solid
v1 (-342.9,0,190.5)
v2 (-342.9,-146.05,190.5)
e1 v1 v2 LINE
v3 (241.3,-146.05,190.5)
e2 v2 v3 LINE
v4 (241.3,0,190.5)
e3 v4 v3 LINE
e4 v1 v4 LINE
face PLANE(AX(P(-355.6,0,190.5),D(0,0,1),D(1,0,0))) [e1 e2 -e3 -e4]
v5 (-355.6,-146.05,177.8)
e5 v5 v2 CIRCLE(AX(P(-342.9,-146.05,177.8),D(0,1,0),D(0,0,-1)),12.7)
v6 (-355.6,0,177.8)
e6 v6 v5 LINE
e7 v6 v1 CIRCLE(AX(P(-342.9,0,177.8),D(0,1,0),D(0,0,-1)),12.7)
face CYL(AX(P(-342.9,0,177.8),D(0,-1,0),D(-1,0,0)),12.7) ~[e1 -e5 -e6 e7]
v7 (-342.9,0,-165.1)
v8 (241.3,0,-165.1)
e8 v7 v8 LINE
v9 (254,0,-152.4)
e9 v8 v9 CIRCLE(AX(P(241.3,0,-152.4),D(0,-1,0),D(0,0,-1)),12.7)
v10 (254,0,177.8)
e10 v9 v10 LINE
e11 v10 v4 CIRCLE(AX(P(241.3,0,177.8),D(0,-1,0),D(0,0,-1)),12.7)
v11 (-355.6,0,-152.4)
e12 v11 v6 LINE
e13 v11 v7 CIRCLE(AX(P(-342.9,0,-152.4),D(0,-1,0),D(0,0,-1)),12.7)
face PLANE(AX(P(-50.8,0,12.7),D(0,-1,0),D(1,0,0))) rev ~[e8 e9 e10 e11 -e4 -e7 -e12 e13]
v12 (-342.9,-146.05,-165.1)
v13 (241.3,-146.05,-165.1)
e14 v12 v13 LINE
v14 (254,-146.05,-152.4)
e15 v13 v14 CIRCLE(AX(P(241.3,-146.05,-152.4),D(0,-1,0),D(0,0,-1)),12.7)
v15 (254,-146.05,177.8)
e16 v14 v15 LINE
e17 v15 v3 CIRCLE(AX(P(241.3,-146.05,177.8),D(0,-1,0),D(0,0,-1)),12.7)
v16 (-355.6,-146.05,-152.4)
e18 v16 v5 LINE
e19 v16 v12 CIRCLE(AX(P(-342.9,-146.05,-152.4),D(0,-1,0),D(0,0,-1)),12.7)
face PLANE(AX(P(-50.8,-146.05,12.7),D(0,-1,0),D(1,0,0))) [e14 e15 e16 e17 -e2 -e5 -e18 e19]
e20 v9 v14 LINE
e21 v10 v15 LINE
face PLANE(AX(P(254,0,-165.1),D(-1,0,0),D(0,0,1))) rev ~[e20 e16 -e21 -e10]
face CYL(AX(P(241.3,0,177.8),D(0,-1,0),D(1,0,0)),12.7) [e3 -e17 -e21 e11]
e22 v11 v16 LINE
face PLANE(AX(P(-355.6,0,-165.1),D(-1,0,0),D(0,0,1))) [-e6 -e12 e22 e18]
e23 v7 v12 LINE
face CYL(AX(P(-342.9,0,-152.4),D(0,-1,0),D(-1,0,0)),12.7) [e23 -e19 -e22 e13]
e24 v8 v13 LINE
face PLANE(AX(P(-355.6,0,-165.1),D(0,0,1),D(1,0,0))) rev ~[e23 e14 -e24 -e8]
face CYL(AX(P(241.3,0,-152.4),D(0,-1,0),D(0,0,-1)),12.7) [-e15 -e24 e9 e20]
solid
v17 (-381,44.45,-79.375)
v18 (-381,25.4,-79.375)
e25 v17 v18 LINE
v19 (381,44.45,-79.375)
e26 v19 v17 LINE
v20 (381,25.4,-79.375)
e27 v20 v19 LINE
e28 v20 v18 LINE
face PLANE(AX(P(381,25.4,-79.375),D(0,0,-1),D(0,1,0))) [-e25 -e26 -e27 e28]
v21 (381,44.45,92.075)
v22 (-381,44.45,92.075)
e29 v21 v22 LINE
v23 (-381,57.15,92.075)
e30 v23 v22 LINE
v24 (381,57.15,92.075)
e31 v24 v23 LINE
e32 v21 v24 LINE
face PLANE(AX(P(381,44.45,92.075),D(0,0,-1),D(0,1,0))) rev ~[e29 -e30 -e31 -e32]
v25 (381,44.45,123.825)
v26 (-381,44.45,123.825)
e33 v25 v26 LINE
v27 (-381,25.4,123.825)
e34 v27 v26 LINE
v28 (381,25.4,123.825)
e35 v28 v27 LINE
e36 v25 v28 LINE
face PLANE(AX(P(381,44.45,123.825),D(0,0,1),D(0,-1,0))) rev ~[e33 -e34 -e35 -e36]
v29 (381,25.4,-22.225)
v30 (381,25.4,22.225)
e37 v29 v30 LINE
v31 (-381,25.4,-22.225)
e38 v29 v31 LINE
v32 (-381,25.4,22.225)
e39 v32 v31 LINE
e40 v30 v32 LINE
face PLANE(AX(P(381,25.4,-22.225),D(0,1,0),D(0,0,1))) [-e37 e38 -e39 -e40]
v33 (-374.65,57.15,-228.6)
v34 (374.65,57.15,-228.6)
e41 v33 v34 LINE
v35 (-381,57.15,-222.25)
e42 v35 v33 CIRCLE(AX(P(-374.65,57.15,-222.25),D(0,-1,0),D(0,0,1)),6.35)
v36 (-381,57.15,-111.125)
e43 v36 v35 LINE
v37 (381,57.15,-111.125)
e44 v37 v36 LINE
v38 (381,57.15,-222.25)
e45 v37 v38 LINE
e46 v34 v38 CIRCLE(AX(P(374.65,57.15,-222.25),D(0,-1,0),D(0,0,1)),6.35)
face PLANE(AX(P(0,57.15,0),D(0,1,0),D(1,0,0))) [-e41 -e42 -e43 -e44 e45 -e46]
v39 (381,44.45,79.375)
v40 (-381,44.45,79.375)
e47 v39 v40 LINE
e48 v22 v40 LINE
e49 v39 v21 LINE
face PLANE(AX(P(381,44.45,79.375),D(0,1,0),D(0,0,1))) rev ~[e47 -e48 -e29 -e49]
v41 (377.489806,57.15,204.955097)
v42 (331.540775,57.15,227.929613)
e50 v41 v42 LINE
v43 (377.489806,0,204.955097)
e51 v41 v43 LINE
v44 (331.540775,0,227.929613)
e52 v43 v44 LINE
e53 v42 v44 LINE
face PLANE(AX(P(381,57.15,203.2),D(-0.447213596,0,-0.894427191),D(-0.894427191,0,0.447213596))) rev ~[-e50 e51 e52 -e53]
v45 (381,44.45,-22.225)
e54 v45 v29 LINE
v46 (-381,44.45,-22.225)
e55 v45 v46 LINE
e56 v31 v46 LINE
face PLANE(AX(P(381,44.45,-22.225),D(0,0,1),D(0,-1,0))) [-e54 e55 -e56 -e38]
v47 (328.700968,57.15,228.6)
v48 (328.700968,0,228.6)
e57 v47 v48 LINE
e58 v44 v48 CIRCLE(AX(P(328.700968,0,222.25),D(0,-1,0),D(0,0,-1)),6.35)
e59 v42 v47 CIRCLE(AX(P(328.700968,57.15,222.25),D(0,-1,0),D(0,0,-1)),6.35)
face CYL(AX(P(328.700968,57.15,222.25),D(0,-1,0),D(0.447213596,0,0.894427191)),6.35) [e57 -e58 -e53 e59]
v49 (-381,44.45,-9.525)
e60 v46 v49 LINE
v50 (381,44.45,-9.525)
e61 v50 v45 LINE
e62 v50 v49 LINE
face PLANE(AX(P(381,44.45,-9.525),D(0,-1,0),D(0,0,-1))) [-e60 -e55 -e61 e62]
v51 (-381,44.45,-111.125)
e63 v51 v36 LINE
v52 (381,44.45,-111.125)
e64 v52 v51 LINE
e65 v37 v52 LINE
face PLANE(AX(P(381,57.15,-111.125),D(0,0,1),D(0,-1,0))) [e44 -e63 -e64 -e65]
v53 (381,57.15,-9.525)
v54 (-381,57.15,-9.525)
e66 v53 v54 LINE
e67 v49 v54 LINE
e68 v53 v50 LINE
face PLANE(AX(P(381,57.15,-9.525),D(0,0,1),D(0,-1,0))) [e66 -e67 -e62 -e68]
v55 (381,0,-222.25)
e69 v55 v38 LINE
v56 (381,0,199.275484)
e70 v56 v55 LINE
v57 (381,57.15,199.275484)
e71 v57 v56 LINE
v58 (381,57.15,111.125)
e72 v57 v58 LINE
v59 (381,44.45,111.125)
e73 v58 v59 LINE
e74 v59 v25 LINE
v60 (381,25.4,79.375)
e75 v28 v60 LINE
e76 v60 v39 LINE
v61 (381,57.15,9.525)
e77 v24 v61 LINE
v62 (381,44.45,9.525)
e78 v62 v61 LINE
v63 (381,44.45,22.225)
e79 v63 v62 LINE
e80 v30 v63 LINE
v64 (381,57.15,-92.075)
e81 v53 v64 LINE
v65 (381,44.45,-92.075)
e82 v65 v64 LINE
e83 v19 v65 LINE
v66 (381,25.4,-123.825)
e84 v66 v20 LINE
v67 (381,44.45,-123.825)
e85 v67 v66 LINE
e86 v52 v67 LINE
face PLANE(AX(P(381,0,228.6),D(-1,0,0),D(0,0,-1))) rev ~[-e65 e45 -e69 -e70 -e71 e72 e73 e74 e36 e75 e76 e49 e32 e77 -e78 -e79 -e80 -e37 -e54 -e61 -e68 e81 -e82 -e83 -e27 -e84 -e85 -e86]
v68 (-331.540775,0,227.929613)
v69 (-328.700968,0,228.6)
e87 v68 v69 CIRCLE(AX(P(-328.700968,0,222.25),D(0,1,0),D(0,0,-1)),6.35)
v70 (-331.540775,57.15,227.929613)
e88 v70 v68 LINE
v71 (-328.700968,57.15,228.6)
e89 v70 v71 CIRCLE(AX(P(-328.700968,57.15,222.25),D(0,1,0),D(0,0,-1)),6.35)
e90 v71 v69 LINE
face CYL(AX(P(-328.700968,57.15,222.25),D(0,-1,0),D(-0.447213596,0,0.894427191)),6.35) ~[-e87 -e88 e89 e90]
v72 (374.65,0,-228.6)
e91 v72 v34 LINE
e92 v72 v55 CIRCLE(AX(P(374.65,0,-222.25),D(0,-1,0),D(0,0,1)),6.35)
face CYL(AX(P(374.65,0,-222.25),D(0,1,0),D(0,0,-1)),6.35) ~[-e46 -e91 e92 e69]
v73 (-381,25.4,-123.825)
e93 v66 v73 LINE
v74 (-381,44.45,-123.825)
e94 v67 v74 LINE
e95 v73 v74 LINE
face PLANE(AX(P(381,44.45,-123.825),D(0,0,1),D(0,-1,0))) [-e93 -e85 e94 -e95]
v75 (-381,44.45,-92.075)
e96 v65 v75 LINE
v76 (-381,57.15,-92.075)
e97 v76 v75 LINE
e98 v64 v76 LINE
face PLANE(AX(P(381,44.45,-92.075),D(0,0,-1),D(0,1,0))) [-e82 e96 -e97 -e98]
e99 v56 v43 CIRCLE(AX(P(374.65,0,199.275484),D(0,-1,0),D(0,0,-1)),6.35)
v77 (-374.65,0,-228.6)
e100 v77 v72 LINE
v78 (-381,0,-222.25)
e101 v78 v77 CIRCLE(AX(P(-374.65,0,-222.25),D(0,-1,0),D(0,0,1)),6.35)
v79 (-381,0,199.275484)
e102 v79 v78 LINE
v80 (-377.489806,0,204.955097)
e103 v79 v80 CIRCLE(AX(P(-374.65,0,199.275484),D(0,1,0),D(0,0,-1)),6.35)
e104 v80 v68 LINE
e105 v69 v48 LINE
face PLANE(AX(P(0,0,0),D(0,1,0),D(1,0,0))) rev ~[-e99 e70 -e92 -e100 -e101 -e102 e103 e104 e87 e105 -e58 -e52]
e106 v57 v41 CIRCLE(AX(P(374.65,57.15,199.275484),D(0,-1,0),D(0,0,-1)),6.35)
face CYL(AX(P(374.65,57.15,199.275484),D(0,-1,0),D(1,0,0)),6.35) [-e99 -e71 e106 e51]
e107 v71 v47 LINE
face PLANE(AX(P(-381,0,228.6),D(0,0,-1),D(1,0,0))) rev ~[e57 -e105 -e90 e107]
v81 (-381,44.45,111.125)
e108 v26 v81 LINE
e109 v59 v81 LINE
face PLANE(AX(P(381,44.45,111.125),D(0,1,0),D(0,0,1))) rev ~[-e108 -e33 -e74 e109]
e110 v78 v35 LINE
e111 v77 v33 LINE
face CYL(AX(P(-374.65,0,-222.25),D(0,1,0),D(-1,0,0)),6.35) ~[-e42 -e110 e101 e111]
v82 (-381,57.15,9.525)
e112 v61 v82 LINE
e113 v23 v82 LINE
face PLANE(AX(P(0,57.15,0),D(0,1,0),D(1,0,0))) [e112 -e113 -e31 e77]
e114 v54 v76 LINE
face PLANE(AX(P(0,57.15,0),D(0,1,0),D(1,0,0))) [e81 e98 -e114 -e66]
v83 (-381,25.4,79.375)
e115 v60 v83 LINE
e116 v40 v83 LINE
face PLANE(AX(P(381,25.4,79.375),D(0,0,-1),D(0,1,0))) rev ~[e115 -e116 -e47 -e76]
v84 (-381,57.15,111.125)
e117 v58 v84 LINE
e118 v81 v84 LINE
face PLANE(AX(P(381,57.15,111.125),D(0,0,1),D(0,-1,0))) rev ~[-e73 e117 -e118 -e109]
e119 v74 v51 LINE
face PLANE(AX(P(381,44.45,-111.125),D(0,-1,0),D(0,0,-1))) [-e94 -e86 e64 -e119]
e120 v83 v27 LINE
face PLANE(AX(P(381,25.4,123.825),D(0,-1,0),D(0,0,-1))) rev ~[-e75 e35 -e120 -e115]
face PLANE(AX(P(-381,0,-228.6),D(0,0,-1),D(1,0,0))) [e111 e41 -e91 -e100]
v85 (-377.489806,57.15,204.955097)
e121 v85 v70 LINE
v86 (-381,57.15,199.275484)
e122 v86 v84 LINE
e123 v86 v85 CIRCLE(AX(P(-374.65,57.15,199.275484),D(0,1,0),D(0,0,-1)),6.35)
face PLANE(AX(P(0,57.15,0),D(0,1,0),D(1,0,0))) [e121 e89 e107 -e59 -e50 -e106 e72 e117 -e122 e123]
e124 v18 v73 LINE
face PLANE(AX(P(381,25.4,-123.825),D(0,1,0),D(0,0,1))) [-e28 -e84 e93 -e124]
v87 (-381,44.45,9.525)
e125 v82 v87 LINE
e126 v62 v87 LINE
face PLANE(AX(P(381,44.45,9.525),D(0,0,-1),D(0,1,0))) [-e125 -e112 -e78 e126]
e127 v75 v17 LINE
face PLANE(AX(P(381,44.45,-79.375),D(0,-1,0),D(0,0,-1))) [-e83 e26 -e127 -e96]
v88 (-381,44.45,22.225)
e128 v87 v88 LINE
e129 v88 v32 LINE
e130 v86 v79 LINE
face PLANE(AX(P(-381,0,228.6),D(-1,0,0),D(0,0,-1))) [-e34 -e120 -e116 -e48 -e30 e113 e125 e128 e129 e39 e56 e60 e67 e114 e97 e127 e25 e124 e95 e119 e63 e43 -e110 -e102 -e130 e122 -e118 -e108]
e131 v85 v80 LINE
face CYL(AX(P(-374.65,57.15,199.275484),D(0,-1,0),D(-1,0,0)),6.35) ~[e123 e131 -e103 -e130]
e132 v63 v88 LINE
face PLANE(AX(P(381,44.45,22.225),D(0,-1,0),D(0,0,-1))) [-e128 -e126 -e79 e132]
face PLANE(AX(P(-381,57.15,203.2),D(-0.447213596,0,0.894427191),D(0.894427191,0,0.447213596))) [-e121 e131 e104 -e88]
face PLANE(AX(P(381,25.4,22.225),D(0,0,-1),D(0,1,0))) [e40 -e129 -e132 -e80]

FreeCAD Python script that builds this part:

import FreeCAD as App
import Part
import Sketcher

V = App.Vector
Q = App.Units.Quantity


def edges_at(feature, points):
    """Names of the edges that pass closest to the given points."""
    edges = feature.Shape.Edges
    near = lambda p: min(range(len(edges)), key=lambda i: edges[i].distToShape(Part.Vertex(*p))[0])
    return sorted({f"Edge{near(p) + 1}" for p in points})


def add_polygon(sketch, points):
    """Adds a closed chain of lines whose ends are joined by coincident constraints."""
    first, n = sketch.GeometryCount, len(points)
    for a, b in zip(points, points[1:] + points[:1]):
        sketch.addGeometry(Part.LineSegment(App.Vector(*a, 0), App.Vector(*b, 0)), False)
    for i in range(n):
        sketch.addConstraint(Sketcher.Constraint("Coincident", first + i, 2, first + (i + 1) % n, 1))

doc = App.newDocument("Part")
body = doc.addObject("PartDesign::Body", "Body")

# Sketch on XZ plane
sketch1 = doc.addObject("Sketcher::SketchObject", "Sketch")
body.addObject(sketch1)
sketch1.AttachmentSupport = (doc.XZ_Plane, [""])
sketch1.MapMode = "FlatFace"
add_polygon(sketch1, [(-381, -229), (-381, 229), (381, 229), (381, -229)])  # lines 0-3
sketch1.addConstraint(Sketcher.Constraint("Vertical", 0))
sketch1.addConstraint(Sketcher.Constraint("Horizontal", 1))
sketch1.addConstraint(Sketcher.Constraint("Vertical", 2))
sketch1.addConstraint(Sketcher.Constraint("Horizontal", 3))
sketch1.addConstraint(Sketcher.Constraint("Symmetric", 0, 2, 2, 2, -1, 1))
sketch1.addConstraint(Sketcher.Constraint("DistanceX", 1, 1, 1, 2, Q("30 in")))
sketch1.addConstraint(Sketcher.Constraint("DistanceY", 0, 1, 0, 2, Q("18 in")))
pad1 = doc.addObject("PartDesign::Pad", "Pad")
body.addObject(pad1)
pad1.Profile = sketch1
pad1.Length = Q("2.25 in")
pad1.Reversed = True

# Sketch on XZ plane
sketch2 = doc.addObject("Sketcher::SketchObject", "Sketch001")
body.addObject(sketch2)
sketch2.AttachmentSupport = (doc.XZ_Plane, [""])
sketch2.MapMode = "FlatFace"
sketch2.AttachmentOffset = App.Placement(V(0, 0, -2.25 * 25.4), App.Rotation())
add_polygon(sketch2, [(-330, 229), (-381, 203), (-381, 229)])  # lines 0-2
add_polygon(sketch2, [(330, 229), (381, 229), (381, 203)])  # lines 3-5
sketch2.addConstraint(Sketcher.Constraint("Vertical", 1))
sketch2.addConstraint(Sketcher.Constraint("Horizontal", 2))
sketch2.addConstraint(Sketcher.Constraint("Horizontal", 3))
sketch2.addConstraint(Sketcher.Constraint("Vertical", 4))
sketch2.addConstraint(Sketcher.Constraint("Symmetric", 1, 2, 3, 2, -2))
sketch2.addConstraint(Sketcher.Constraint("Horizontal", 0, 2, 4, 2))
sketch2.addConstraint(Sketcher.Constraint("Equal", 2, 3))
sketch2.addConstraint(Sketcher.Constraint("DistanceX", 2, 1, 2, 2, Q("2 in")))
sketch2.addConstraint(Sketcher.Constraint("DistanceY", 1, 1, 1, 2, Q("1 in")))
sketch2.addConstraint(Sketcher.Constraint("DistanceX", 0, 2, -1, 1, Q("15 in")))
sketch2.addConstraint(Sketcher.Constraint("DistanceY", -1, 1, 0, 2, Q("8 in")))
pocket1 = doc.addObject("PartDesign::Pocket", "Pocket")
body.addObject(pocket1)
pocket1.Profile = sketch2
pocket1.Type = "ThroughAll"
pocket1.Reversed = True

# Sketch on YZ plane
sketch3 = doc.addObject("Sketcher::SketchObject", "Sketch002")
body.addObject(sketch3)
sketch3.AttachmentSupport = (doc.YZ_Plane, [""])
sketch3.MapMode = "FlatFace"
sketch3.AttachmentOffset = App.Placement(V(0, 0, 15 * 25.4), App.Rotation())
add_polygon(sketch3, [(25, 124), (25, 79), (44, 79), (44, 92), (57, 92), (57, 111), (44, 111), (44, 124)])  # lines 0-7
add_polygon(sketch3, [(44, 22), (25, 22), (25, -22), (44, -22), (44, -10), (57, -10), (57, 10), (44, 10)])  # lines 8-15
add_polygon(sketch3, [(44, -79), (25, -79), (25, -124), (44, -124), (44, -111), (57, -111), (57, -92), (44, -92)])  # lines 16-23
sketch3.addConstraint(Sketcher.Constraint("Vertical", 0))
sketch3.addConstraint(Sketcher.Constraint("Horizontal", 1))
sketch3.addConstraint(Sketcher.Constraint("Vertical", 2))
sketch3.addConstraint(Sketcher.Constraint("Horizontal", 3))
sketch3.addConstraint(Sketcher.Constraint("Vertical", 4))
sketch3.addConstraint(Sketcher.Constraint("Horizontal", 5))
sketch3.addConstraint(Sketcher.Constraint("Vertical", 6))
sketch3.addConstraint(Sketcher.Constraint("Horizontal", 7))
sketch3.addConstraint(Sketcher.Constraint("Horizontal", 8))
sketch3.addConstraint(Sketcher.Constraint("Vertical", 9))
sketch3.addConstraint(Sketcher.Constraint("Horizontal", 10))
sketch3.addConstraint(Sketcher.Constraint("Vertical", 11))
sketch3.addConstraint(Sketcher.Constraint("Horizontal", 12))
sketch3.addConstraint(Sketcher.Constraint("Vertical", 13))
sketch3.addConstraint(Sketcher.Constraint("Horizontal", 14))
sketch3.addConstraint(Sketcher.Constraint("Vertical", 15))
sketch3.addConstraint(Sketcher.Constraint("Horizontal", 16))
sketch3.addConstraint(Sketcher.Constraint("Vertical", 17))
sketch3.addConstraint(Sketcher.Constraint("Horizontal", 18))
sketch3.addConstraint(Sketcher.Constraint("Vertical", 19))
sketch3.addConstraint(Sketcher.Constraint("Horizontal", 20))
sketch3.addConstraint(Sketcher.Constraint("Vertical", 21))
sketch3.addConstraint(Sketcher.Constraint("Horizontal", 22))
sketch3.addConstraint(Sketcher.Constraint("Vertical", 23))
sketch3.addConstraint(Sketcher.Constraint("Symmetric", 11, 2, 14, 2, -1))
sketch3.addConstraint(Sketcher.Constraint("Symmetric", 0, 2, 16, 2, -1))
sketch3.addConstraint(Sketcher.Constraint("Symmetric", 6, 2, 18, 2, -1))
sketch3.addConstraint(Sketcher.Constraint("Symmetric", 4, 2, 20, 2, -1))
sketch3.addConstraint(Sketcher.Constraint("Symmetric", 2, 2, 22, 2, -1))
sketch3.addConstraint(Sketcher.Constraint("Vertical", 2, 2, 5, 2))
sketch3.addConstraint(Sketcher.Constraint("Vertical", 7, 2, 8, 2))
sketch3.addConstraint(Sketcher.Constraint("Vertical", 6, 2, 10, 2))
sketch3.addConstraint(Sketcher.Constraint("Vertical", 4, 2, 12, 2))
sketch3.addConstraint(Sketcher.Constraint("Equal", 22, 2))
sketch3.addConstraint(Sketcher.Constraint("Equal", 18, 4))
sketch3.addConstraint(Sketcher.Constraint("Equal", 2, 6))
sketch3.addConstraint(Sketcher.Constraint("Equal", 0, 9))
sketch3.addConstraint(Sketcher.Constraint("Equal", 6, 11))
sketch3.addConstraint(Sketcher.Constraint("Equal", 4, 13))
sketch3.addConstraint(Sketcher.Constraint("DistanceX", 3, 1, 3, 2, Q("0.5 in")))
sketch3.addConstraint(Sketcher.Constraint("DistanceX", -1, 1, 0, 2, Q("1 in")))
sketch3.addConstraint(Sketcher.Constraint("DistanceY", 9, 2, 0, 2, Q("4 in")))
sketch3.addConstraint(Sketcher.Constraint("DistanceX", 1, 1, 1, 2, Q("0.75 in")))
pocket2 = doc.addObject("PartDesign::Pocket", "Pocket001")
body.addObject(pocket2)
pocket2.Profile = sketch3
pocket2.Type = "ThroughAll"
doc.recompute()

fillet = doc.addObject("PartDesign::Fillet", "Fillet")
body.addObject(fillet)
fillet.Base = (pocket2, edges_at(pocket2, [
    (-381, 28.575, 203.2),
    (-330.2, 28.575, 228.6),
    (330.2, 28.575, 228.6),
    (381, 28.575, 203.2),
    (-381, 28.575, -228.6),
    (381, 28.575, -228.6),
]))
fillet.Radius = Q("0.25 in")
body2 = doc.addObject("PartDesign::Body", "Body001")

# Sketch on XZ plane
sketch4 = doc.addObject("Sketcher::SketchObject", "Sketch003")
body2.addObject(sketch4)
sketch4.AttachmentSupport = (doc.getObject("XZ_Plane001"), [""])
sketch4.MapMode = "FlatFace"
add_polygon(sketch4, [(-356, 190), (-356, -165), (254, -165), (254, 190)])  # lines 0-3
sketch4.addConstraint(Sketcher.Constraint("Vertical", 0))
sketch4.addConstraint(Sketcher.Constraint("Horizontal", 1))
sketch4.addConstraint(Sketcher.Constraint("Vertical", 2))
sketch4.addConstraint(Sketcher.Constraint("Horizontal", 3))
sketch4.addConstraint(Sketcher.Constraint("DistanceX", 1, 1, 1, 2, Q("24 in")))
sketch4.addConstraint(Sketcher.Constraint("DistanceY", 0, 2, 0, 1, Q("14 in")))
sketch4.addConstraint(Sketcher.Constraint("DistanceX", 0, 2, -1, 1, Q("14 in")))
sketch4.addConstraint(Sketcher.Constraint("DistanceY", 0, 2, -1, 1, Q("6.5 in")))
pad2 = doc.addObject("PartDesign::Pad", "Pad001")
body2.addObject(pad2)
pad2.Profile = sketch4
pad2.Length = Q("5.75 in")
doc.recompute()

fillet2 = doc.addObject("PartDesign::Fillet", "Fillet001")
body2.addObject(fillet2)
fillet2.Base = (pad2, edges_at(pad2, [
    (-355.6, -73.025, 190.5),
    (254, -73.025, 190.5),
    (254, -73.025, -165.1),
    (-355.6, -73.025, -165.1),
]))
fillet2.Radius = Q("0.5 in")

doc.recompute()
